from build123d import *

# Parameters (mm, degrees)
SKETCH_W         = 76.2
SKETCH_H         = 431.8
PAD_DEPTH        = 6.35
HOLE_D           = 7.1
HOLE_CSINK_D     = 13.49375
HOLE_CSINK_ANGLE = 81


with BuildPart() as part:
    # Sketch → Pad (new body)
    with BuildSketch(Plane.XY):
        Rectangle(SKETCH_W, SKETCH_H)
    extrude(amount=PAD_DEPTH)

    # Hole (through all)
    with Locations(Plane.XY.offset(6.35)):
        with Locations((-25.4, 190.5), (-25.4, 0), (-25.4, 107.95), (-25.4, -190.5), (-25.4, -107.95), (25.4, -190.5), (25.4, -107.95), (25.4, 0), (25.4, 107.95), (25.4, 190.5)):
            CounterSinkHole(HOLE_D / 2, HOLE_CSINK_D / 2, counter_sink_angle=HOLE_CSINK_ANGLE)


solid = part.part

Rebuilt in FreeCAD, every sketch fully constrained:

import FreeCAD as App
import Part
import Sketcher
from FreeCAD import Vector
Q = App.Units.Quantity


def add_polygon(sketch, points):
    """Adds a closed chain of lines whose ends are joined by coincident constraints."""
    first, n = sketch.GeometryCount, len(points)
    for a, b in zip(points, points[1:] + points[:1]):
        sketch.addGeometry(Part.LineSegment(App.Vector(*a, 0), App.Vector(*b, 0)), False)
    for i in range(n):
        sketch.addConstraint(Sketcher.Constraint("Coincident", first + i, 2, first + (i + 1) % n, 1))

doc = App.newDocument("Part")
params = doc.addObject("Spreadsheet::Sheet", "Params")
for row, (alias, value) in enumerate([
    ("sketch1_width", "3 in"),
    ("sketch1_height", "17 in"),
    ("pad1_length", "0.25 in"),
    ("hole_diameter", "7.1 mm"),
    ("hole_csink_diameter", "0.53125 in"),
], start=1):
    params.set(f"A{row}", alias)
    params.set(f"B{row}", "=" + value)
    params.setAlias(f"B{row}", alias)

body = doc.addObject("PartDesign::Body", "Body")

# Sketch on XY plane
sketch1 = doc.addObject("Sketcher::SketchObject", "Sketch")
body.addObject(sketch1)
sketch1.AttachmentSupport = (doc.XY_Plane, [""])
sketch1.MapMode = "FlatFace"
add_polygon(sketch1, [(-38, 216), (-38, -216), (38, -216), (38, 216)])  # lines 0-3
sketch1.addConstraint(Sketcher.Constraint("Vertical", 0))
sketch1.addConstraint(Sketcher.Constraint("Horizontal", 1))
sketch1.addConstraint(Sketcher.Constraint("Vertical", 2))
sketch1.addConstraint(Sketcher.Constraint("Horizontal", 3))
sketch1.addConstraint(Sketcher.Constraint("Symmetric", 0, 2, 2, 2, -1, 1))
sketch1.addConstraint(Sketcher.Constraint("DistanceX", 1, 1, 1, 2, Q("3 in")))
sketch1.addConstraint(Sketcher.Constraint("DistanceY", 0, 2, 0, 1, Q("17 in")))
sketch1.setExpression("Constraints[9]", "Params.sketch1_width")
sketch1.setExpression("Constraints[10]", "Params.sketch1_height")
pad1 = doc.addObject("PartDesign::Pad", "Pad")
body.addObject(pad1)
pad1.Profile = sketch1
pad1.setExpression("Length", "Params.pad1_length")

# Sketch on XY plane
sketch2 = doc.addObject("Sketcher::SketchObject", "Sketch001")
body.addObject(sketch2)
sketch2.AttachmentSupport = (doc.XY_Plane, [""])
sketch2.MapMode = "FlatFace"
sketch2.AttachmentOffset = App.Placement(Vector(0, 0, 0.25 * 25.4), App.Rotation())
sketch2.addGeometry(Part.Circle(Vector(-25.4, 190.5, 0), Vector(0, 0, 1), 3.5), False)
sketch2.addGeometry(Part.Circle(Vector(-25.4, 0, 0), Vector(0, 0, 1), 3.5), False)
sketch2.addGeometry(Part.Circle(Vector(-25.4, 108, 0), Vector(0, 0, 1), 3.5), False)
sketch2.addGeometry(Part.Circle(Vector(-25.4, -190.5, 0), Vector(0, 0, 1), 3.5), False)
sketch2.addGeometry(Part.Circle(Vector(-25.4, -108, 0), Vector(0, 0, 1), 3.5), False)
sketch2.addGeometry(Part.Circle(Vector(25.4, -190.5, 0), Vector(0, 0, 1), 3.5), False)
sketch2.addGeometry(Part.Circle(Vector(25.4, -108, 0), Vector(0, 0, 1), 3.5), False)
sketch2.addGeometry(Part.Circle(Vector(25.4, 0, 0), Vector(0, 0, 1), 3.5), False)
sketch2.addGeometry(Part.Circle(Vector(25.4, 108, 0), Vector(0, 0, 1), 3.5), False)
sketch2.addGeometry(Part.Circle(Vector(25.4, 190.5, 0), Vector(0, 0, 1), 3.5), False)
sketch2.addConstraint(Sketcher.Constraint("Equal", 0, 1))
sketch2.addConstraint(Sketcher.Constraint("Equal", 1, 2))
sketch2.addConstraint(Sketcher.Constraint("Equal", 2, 3))
sketch2.addConstraint(Sketcher.Constraint("Equal", 3, 4))
sketch2.addConstraint(Sketcher.Constraint("Equal", 4, 5))
sketch2.addConstraint(Sketcher.Constraint("Equal", 5, 6))
sketch2.addConstraint(Sketcher.Constraint("Equal", 6, 7))
sketch2.addConstraint(Sketcher.Constraint("Equal", 7, 8))
sketch2.addConstraint(Sketcher.Constraint("Equal", 8, 9))
sketch2.addConstraint(Sketcher.Constraint("Symmetric", 0, 3, 5, 3, -1, 1))
sketch2.addConstraint(Sketcher.Constraint("Symmetric", 2, 3, 6, 3, -1, 1))
sketch2.addConstraint(Sketcher.Constraint("Symmetric", 1, 3, 7, 3, -1, 1))
sketch2.addConstraint(Sketcher.Constraint("Symmetric", 4, 3, 8, 3, -1, 1))
sketch2.addConstraint(Sketcher.Constraint("Symmetric", 3, 3, 9, 3, -1, 1))
sketch2.addConstraint(Sketcher.Constraint("Symmetric", 3, 3, 5, 3, -2))
sketch2.addConstraint(Sketcher.Constraint("Symmetric", 4, 3, 6, 3, -2))
sketch2.addConstraint(Sketcher.Constraint("PointOnObject", 1, 3, -1))
sketch2.addConstraint(Sketcher.Constraint("Vertical", 0, 3, 1, 3))
sketch2.addConstraint(Sketcher.Constraint("Vertical", 1, 3, 2, 3))
sketch2.addConstraint(Sketcher.Constraint("DistanceX", 0, 3, -1, 1, Q("1 in")))
sketch2.addConstraint(Sketcher.Constraint("DistanceY", 3, 3, 0, 3, Q("15 in")))
sketch2.addConstraint(Sketcher.Constraint("DistanceY", 4, 3, 2, 3, Q("8.5 in")))
sketch2.addConstraint(Sketcher.Constraint("Diameter", 0, Q("7.1 mm")))
doc.recompute()
hole = doc.addObject("PartDesign::Hole", "Hole")
body.addObject(hole)
hole.Profile = sketch2
hole.ThreadType = "None"
hole.setExpression("Diameter", "Params.hole_diameter")
hole.DepthType = "ThroughAll"
hole.HoleCutType = "Countersink"
hole.setExpression("HoleCutDiameter", "Params.hole_csink_diameter")
hole.HoleCutCountersinkAngle = 81

doc.recompute()
